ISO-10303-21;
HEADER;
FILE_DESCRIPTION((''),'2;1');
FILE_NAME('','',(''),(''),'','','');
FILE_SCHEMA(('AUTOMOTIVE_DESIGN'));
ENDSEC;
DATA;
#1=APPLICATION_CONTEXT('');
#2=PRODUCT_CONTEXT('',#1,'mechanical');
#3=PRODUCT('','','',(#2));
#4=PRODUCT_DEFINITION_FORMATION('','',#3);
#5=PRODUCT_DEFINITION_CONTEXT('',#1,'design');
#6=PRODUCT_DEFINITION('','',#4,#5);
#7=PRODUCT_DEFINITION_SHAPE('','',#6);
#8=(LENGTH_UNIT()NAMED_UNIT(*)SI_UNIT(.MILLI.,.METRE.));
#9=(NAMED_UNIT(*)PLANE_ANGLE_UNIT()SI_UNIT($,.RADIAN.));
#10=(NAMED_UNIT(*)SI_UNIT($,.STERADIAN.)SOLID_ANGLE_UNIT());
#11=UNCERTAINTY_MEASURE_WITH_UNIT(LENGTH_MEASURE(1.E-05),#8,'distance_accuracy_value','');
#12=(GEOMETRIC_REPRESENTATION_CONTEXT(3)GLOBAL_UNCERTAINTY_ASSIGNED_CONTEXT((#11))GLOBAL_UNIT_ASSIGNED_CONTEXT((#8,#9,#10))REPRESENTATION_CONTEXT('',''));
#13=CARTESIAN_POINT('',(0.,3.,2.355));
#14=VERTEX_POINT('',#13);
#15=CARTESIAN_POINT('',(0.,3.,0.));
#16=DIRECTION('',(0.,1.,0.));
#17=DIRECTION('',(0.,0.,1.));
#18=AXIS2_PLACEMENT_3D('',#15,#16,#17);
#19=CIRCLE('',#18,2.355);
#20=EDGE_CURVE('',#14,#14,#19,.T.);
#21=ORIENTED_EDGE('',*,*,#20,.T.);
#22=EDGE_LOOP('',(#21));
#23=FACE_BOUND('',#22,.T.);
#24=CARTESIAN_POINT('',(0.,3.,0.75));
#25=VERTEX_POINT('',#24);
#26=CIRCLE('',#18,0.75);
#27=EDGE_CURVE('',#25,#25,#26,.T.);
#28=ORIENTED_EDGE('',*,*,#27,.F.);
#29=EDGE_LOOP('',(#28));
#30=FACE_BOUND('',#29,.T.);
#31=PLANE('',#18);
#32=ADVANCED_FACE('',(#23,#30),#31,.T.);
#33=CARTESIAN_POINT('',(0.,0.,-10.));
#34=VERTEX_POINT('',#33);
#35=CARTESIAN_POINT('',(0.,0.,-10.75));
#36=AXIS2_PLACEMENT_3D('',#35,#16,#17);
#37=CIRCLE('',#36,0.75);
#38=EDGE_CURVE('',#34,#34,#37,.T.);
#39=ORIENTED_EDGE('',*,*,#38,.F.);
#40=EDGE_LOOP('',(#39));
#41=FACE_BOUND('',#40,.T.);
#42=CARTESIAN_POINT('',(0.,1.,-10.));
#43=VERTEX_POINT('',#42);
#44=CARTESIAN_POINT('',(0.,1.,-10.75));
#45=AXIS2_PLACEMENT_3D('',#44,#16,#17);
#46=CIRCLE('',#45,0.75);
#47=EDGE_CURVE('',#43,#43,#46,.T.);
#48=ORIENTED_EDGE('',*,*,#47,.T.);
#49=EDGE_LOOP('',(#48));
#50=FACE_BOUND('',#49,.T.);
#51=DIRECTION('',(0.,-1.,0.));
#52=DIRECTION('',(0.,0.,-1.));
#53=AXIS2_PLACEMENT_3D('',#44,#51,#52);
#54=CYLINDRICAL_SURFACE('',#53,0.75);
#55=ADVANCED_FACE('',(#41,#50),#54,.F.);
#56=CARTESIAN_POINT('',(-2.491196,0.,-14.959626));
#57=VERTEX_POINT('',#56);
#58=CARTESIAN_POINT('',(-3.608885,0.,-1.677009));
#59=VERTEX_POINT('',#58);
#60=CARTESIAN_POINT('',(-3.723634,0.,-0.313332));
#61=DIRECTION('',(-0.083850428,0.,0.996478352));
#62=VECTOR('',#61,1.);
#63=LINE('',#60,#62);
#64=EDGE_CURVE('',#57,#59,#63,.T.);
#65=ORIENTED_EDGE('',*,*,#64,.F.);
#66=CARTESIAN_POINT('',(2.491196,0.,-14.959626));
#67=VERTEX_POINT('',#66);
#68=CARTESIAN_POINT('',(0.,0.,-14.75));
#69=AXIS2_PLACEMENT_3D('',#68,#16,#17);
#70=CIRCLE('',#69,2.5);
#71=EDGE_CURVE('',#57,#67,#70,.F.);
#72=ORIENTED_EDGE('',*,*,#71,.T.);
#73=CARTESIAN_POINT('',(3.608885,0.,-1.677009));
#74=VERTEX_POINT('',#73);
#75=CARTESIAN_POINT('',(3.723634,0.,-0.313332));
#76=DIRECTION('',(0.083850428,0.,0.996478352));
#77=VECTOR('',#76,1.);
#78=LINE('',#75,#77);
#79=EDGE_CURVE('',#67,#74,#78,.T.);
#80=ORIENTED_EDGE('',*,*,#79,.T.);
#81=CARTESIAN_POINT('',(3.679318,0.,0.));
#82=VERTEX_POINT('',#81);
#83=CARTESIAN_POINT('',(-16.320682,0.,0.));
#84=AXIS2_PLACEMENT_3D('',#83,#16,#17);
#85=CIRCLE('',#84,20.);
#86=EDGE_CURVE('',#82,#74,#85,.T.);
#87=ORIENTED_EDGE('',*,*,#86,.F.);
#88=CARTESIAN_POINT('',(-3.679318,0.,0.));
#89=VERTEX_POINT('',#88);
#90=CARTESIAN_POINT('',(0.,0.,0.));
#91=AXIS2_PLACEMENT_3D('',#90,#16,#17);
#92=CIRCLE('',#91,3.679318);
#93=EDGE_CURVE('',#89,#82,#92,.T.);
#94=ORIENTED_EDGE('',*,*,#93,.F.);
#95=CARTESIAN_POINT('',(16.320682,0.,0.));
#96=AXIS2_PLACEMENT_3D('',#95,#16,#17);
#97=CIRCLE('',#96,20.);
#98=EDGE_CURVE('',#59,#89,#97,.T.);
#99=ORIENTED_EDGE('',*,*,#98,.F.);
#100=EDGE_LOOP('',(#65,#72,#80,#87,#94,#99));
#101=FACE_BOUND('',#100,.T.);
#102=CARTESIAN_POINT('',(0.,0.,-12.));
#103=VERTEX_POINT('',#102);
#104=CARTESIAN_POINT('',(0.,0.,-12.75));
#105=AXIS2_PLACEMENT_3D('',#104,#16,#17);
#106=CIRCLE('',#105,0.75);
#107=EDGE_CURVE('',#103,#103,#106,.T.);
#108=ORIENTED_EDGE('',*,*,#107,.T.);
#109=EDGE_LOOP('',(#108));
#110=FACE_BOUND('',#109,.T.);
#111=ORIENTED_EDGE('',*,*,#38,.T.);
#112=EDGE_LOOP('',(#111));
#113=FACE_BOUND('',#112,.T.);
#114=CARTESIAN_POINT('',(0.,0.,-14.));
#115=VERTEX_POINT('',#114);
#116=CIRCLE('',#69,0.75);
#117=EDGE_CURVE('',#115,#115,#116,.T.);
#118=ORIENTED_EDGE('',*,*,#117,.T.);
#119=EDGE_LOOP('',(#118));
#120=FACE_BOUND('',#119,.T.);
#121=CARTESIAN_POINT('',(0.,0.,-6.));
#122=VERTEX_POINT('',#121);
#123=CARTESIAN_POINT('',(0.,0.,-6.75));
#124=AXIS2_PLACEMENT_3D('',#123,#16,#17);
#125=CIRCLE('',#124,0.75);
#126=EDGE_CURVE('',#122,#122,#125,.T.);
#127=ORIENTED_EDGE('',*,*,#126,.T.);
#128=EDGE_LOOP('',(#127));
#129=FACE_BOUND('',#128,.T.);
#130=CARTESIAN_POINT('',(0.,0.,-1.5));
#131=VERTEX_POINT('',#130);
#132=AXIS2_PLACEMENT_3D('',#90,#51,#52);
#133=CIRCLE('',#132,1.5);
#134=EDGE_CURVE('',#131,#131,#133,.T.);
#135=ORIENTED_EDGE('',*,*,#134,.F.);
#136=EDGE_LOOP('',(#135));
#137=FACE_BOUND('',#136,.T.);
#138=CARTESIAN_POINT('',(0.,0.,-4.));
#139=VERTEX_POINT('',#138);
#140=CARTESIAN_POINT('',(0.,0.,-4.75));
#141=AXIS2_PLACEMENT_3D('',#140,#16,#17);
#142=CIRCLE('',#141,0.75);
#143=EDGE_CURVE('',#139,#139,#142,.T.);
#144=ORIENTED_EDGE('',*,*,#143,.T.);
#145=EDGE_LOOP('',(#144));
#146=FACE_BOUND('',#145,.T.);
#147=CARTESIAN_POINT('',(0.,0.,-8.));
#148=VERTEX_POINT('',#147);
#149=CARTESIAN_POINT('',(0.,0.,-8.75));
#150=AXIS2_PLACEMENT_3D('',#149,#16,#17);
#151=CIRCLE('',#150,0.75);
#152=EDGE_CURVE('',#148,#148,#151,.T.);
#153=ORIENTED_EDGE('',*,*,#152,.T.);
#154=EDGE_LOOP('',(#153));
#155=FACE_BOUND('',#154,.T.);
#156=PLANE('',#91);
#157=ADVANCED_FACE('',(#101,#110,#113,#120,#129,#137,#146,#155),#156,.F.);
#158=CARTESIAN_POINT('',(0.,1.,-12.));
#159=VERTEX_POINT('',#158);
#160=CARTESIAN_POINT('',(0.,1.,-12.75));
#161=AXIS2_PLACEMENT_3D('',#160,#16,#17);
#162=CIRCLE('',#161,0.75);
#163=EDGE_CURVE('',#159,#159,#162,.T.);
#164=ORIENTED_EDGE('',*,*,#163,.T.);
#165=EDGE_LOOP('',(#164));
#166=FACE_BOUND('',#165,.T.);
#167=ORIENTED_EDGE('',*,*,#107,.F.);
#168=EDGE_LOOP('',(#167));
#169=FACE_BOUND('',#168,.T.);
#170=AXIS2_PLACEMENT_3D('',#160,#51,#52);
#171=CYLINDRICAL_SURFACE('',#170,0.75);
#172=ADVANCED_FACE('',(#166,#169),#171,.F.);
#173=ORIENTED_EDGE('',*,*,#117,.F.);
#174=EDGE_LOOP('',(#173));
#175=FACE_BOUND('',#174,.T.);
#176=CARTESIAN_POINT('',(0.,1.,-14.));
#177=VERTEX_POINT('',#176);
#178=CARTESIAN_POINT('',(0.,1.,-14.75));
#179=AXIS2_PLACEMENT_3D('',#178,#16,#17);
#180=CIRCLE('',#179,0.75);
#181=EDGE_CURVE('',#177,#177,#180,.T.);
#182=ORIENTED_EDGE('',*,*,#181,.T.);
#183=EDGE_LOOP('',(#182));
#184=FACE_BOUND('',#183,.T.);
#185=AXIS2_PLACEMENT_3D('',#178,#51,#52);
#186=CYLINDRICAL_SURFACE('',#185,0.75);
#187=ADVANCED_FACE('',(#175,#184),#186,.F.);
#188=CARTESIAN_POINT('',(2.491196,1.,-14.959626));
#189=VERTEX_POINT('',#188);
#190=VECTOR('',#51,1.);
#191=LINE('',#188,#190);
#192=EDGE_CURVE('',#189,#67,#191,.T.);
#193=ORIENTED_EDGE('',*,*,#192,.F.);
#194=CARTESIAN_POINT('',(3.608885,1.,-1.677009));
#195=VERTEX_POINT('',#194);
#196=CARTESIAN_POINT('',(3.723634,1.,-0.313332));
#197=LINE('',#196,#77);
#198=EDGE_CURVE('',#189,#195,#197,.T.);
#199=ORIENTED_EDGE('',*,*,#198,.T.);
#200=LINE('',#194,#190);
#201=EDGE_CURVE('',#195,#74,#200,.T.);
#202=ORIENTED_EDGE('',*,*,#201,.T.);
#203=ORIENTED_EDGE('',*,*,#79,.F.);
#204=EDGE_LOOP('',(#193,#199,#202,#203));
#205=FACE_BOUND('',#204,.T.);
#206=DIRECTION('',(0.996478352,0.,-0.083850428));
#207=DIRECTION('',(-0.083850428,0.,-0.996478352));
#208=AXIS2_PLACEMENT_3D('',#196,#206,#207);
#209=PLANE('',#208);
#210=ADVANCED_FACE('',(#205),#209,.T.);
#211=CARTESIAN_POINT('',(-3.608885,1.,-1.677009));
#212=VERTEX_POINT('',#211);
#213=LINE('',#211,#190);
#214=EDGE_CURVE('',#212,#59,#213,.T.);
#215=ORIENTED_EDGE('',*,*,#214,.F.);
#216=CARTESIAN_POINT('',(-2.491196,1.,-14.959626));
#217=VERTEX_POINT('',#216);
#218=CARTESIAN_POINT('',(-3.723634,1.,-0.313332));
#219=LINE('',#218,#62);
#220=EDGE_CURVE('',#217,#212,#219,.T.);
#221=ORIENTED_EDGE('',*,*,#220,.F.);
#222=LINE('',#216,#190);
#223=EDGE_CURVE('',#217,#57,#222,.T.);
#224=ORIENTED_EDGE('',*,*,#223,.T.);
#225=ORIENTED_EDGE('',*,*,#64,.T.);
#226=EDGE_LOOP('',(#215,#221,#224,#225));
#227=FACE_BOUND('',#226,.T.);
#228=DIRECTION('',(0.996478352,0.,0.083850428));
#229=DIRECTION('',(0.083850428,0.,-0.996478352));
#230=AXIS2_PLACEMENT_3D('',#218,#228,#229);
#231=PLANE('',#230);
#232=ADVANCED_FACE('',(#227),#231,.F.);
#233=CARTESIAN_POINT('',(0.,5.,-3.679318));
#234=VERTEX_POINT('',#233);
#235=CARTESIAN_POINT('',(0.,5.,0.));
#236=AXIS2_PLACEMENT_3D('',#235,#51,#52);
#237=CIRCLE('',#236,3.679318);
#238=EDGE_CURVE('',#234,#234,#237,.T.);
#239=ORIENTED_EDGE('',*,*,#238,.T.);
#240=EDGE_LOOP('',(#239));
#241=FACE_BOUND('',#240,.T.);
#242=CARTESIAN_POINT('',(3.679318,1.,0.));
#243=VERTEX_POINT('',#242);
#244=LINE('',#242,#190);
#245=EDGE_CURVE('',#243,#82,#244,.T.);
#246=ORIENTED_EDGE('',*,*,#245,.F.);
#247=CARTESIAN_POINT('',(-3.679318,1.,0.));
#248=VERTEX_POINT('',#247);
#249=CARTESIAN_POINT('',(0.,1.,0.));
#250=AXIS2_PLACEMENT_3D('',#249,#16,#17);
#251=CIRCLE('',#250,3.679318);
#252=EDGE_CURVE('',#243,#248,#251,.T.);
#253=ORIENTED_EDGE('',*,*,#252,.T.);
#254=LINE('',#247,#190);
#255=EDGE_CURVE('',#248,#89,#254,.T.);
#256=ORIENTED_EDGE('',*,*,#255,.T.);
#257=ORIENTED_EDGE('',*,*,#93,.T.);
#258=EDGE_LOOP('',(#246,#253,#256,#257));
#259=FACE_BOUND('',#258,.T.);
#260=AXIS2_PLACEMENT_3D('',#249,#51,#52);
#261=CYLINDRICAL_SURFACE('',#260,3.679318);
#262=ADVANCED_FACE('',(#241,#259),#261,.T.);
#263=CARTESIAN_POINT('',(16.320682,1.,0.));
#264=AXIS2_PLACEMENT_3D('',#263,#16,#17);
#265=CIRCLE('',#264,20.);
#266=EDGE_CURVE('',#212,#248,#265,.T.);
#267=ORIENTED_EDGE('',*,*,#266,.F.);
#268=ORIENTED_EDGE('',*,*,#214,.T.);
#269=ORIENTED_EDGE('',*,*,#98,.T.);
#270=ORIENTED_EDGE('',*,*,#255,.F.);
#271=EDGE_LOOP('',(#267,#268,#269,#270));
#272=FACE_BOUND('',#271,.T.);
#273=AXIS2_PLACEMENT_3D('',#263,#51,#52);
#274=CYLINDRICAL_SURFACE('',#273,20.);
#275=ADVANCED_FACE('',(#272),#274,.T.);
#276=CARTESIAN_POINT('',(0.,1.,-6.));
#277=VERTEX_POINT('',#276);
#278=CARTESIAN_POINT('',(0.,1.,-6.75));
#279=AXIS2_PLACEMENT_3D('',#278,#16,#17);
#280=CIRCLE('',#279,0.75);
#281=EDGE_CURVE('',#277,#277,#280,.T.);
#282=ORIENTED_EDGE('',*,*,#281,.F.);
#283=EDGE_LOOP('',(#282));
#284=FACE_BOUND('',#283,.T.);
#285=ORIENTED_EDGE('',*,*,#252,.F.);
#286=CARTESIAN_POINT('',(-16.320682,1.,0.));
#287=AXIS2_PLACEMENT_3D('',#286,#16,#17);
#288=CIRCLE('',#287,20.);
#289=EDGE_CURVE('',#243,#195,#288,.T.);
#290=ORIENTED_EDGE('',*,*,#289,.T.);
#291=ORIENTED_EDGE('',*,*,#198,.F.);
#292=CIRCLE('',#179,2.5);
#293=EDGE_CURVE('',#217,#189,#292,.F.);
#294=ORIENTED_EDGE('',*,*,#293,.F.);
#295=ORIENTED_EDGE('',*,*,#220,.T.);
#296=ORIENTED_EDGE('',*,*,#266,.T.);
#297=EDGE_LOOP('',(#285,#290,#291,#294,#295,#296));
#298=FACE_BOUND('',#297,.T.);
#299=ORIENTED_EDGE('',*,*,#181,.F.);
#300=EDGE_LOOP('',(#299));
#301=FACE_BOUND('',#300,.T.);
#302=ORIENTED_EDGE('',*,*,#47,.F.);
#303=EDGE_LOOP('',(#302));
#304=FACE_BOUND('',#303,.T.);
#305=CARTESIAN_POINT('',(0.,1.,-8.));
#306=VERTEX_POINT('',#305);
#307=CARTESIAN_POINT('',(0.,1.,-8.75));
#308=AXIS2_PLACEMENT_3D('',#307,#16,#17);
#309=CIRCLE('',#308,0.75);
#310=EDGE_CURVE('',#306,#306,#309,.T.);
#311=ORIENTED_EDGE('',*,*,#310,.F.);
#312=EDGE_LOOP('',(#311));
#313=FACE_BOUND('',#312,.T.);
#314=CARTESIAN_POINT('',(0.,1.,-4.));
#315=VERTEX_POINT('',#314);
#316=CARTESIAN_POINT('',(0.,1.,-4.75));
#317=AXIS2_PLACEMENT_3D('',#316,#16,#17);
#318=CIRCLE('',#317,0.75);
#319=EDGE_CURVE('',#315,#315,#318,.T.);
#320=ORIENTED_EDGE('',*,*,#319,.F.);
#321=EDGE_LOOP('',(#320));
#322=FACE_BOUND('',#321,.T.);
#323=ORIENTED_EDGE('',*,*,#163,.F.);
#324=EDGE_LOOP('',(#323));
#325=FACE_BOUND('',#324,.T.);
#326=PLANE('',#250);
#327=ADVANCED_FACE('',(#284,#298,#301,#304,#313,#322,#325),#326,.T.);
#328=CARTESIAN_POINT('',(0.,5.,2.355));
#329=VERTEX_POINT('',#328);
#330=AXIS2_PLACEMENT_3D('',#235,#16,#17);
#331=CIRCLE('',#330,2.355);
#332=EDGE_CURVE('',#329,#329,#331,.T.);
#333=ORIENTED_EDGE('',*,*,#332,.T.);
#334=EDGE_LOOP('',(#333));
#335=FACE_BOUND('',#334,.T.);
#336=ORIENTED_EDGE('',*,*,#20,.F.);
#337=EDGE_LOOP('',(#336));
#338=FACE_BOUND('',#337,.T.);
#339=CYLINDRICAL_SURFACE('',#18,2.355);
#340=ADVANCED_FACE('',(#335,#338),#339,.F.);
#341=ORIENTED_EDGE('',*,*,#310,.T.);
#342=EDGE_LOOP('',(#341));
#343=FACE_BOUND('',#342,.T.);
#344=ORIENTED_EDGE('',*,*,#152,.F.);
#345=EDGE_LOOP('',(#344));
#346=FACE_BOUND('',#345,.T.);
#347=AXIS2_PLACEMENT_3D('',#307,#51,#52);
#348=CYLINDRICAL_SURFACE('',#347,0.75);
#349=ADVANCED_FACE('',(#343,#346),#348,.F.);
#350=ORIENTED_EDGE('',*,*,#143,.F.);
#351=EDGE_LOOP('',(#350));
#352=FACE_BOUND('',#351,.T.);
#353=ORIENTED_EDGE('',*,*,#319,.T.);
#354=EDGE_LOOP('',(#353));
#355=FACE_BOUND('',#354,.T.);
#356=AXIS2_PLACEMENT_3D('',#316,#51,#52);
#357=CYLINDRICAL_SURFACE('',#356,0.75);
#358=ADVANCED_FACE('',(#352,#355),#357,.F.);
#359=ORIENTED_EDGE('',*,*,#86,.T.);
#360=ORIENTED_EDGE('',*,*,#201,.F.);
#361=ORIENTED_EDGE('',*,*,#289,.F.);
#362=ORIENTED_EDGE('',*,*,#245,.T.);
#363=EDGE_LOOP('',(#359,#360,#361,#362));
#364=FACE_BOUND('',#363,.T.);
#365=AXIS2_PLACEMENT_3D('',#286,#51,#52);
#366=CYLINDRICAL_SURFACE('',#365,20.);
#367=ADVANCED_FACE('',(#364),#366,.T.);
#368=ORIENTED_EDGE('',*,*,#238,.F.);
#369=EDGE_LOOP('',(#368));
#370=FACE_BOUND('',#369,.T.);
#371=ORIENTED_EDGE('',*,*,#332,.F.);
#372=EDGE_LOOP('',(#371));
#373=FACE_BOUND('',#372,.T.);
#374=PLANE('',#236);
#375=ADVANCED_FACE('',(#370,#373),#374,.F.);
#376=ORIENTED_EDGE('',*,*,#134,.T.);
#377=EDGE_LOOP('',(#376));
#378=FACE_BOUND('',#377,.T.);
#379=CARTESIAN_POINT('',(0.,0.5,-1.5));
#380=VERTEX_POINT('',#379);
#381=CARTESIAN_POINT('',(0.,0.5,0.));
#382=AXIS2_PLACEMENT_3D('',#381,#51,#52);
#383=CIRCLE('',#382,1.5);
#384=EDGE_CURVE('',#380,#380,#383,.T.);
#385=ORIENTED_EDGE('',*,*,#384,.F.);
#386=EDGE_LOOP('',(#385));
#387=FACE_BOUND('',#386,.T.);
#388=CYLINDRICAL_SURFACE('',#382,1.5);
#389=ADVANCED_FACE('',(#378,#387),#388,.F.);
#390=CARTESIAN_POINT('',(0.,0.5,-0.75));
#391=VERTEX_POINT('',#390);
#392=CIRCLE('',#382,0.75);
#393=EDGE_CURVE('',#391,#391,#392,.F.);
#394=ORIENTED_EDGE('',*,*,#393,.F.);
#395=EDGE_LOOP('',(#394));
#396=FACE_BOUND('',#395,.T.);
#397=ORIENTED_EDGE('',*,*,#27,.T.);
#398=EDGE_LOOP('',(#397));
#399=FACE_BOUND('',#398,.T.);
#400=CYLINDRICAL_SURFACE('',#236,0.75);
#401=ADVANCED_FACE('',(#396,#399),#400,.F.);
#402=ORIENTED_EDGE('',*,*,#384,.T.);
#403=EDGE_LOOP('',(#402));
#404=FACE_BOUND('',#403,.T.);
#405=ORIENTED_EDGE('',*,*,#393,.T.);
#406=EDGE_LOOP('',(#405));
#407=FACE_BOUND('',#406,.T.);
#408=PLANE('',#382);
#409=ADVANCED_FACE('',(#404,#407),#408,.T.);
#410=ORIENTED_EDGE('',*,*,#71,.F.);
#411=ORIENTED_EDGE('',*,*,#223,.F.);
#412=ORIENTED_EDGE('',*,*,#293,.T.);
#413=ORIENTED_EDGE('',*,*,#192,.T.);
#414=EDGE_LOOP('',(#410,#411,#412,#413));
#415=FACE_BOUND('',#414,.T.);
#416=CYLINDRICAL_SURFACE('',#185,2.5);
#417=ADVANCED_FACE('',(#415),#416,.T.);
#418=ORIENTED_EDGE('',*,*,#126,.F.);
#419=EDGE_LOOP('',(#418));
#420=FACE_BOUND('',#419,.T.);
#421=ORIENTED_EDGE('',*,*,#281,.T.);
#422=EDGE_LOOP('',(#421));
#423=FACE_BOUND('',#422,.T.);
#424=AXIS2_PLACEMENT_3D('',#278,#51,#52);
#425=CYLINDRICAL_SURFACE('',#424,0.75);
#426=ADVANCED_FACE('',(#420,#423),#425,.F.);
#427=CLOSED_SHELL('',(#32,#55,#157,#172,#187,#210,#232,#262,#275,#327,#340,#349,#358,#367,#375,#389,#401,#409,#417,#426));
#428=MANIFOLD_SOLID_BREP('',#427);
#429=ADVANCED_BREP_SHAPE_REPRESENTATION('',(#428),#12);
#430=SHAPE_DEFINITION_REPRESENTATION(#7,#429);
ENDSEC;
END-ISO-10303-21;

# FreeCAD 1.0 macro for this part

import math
import FreeCAD as App
import Part
import Sketcher

doc = App.newDocument("Part")
body = doc.addObject("PartDesign::Body", "Body")

# Sketch on XZ plane
sketch1 = doc.addObject("Sketcher::SketchObject", "Sketch")
body.addObject(sketch1)
sketch1.AttachmentSupport = (doc.XZ_Plane, [""])
sketch1.MapMode = "FlatFace"
sketch1.addGeometry(Part.ArcOfCircle(Part.Circle(App.Vector(0, 0, 0), App.Vector(0, 0, 1), 3.7), math.radians(0), math.radians(180)), False)
sketch1.addGeometry(Part.ArcOfCircle(Part.Circle(App.Vector(-16.3, 0, 0), App.Vector(0, 0, 1), 20), math.radians(-4.81), math.radians(0)), False)
sketch1.addGeometry(Part.LineSegment(App.Vector(3.6, -1.7, 0), App.Vector(2.5, -15, 0)), False)
sketch1.addGeometry(Part.ArcOfCircle(Part.Circle(App.Vector(0, -14.8, 0), App.Vector(0, 0, 1), 2.5), math.radians(-175), math.radians(-5)), False)
sketch1.addGeometry(Part.LineSegment(App.Vector(-2.5, -15, 0), App.Vector(-3.6, -1.7, 0)), False)
sketch1.addGeometry(Part.ArcOfCircle(Part.Circle(App.Vector(16.3, 0, 0), App.Vector(0, 0, 1), 20), math.radians(-180), math.radians(-175.19)), False)
sketch1.addGeometry(Part.Circle(App.Vector(0, 0, 0), App.Vector(0, 0, 1), 0.8), False)
sketch1.addGeometry(Part.Circle(App.Vector(0, -14.8, 0), App.Vector(0, 0, 1), 0.8), False)
sketch1.addGeometry(Part.Circle(App.Vector(0, -4.8, 0), App.Vector(0, 0, 1), 0.8), False)
sketch1.addGeometry(Part.Circle(App.Vector(0, -6.8, 0), App.Vector(0, 0, 1), 0.8), False)
sketch1.addGeometry(Part.Circle(App.Vector(0, -8.8, 0), App.Vector(0, 0, 1), 0.8), False)
sketch1.addGeometry(Part.Circle(App.Vector(0, -10.8, 0), App.Vector(0, 0, 1), 0.8), False)
sketch1.addGeometry(Part.Circle(App.Vector(0, -12.8, 0), App.Vector(0, 0, 1), 0.8), False)
sketch1.addConstraint(Sketcher.Constraint("Tangent", 0, 1, 1, 2))
sketch1.addConstraint(Sketcher.Constraint("Tangent", 1, 1, 2, 1))
sketch1.addConstraint(Sketcher.Constraint("Tangent", 2, 2, 3, 2))
sketch1.addConstraint(Sketcher.Constraint("Tangent", 3, 1, 4, 1))
sketch1.addConstraint(Sketcher.Constraint("Tangent", 4, 2, 5, 2))
sketch1.addConstraint(Sketcher.Constraint("Tangent", 5, 1, 0, 2))
sketch1.addConstraint(Sketcher.Constraint("Coincident", 0, 3, -1, 1))
sketch1.addConstraint(Sketcher.Constraint("Coincident", 6, 3, -1, 1))
sketch1.addConstraint(Sketcher.Constraint("Coincident", 7, 3, 3, 3))
sketch1.addConstraint(Sketcher.Constraint("Equal", 1, 5))
sketch1.addConstraint(Sketcher.Constraint("Equal", 6, 7))
sketch1.addConstraint(Sketcher.Constraint("Equal", 7, 8))
sketch1.addConstraint(Sketcher.Constraint("Equal", 8, 9))
sketch1.addConstraint(Sketcher.Constraint("Equal", 9, 10))
sketch1.addConstraint(Sketcher.Constraint("Equal", 10, 11))
sketch1.addConstraint(Sketcher.Constraint("Equal", 11, 12))
sketch1.addConstraint(Sketcher.Constraint("Symmetric", 2, 2, 3, 1, -2))
sketch1.addConstraint(Sketcher.Constraint("PointOnObject", 1, 3, -1))
sketch1.addConstraint(Sketcher.Constraint("PointOnObject", 8, 3, -2))
sketch1.addConstraint(Sketcher.Constraint("PointOnObject", 9, 3, -2))
sketch1.addConstraint(Sketcher.Constraint("PointOnObject", 10, 3, -2))
sketch1.addConstraint(Sketcher.Constraint("PointOnObject", 11, 3, -2))
sketch1.addConstraint(Sketcher.Constraint("PointOnObject", 12, 3, -2))
sketch1.addConstraint(Sketcher.Constraint("Radius", 1, 20.0))
sketch1.addConstraint(Sketcher.Constraint("Diameter", 6, 1.5))
sketch1.addConstraint(Sketcher.Constraint("Radius", 3, 2.5))
sketch1.addConstraint(Sketcher.Constraint("DistanceY", 3, 3, 8, 3, 10.0))
sketch1.addConstraint(Sketcher.Constraint("DistanceY", 9, 3, 8, 3, 2.0))
sketch1.addConstraint(Sketcher.Constraint("DistanceY", 10, 3, 9, 3, 2.0))
sketch1.addConstraint(Sketcher.Constraint("DistanceY", 11, 3, 10, 3, 2.0))
sketch1.addConstraint(Sketcher.Constraint("DistanceY", 3, 3, 12, 3, 2.0))
sketch1.addConstraint(Sketcher.Constraint("DistanceY", 3, 3, -1, 1, 14.75))
sketch1.addConstraint(Sketcher.Constraint("Radius", 0, 3.679318))
pad1 = doc.addObject("PartDesign::Pad", "Pad")
body.addObject(pad1)
pad1.Profile = sketch1
pad1.Length = 1
pad1.Reversed = True

# Sketch on XZ plane
sketch2 = doc.addObject("Sketcher::SketchObject", "Sketch001")
body.addObject(sketch2)
sketch2.AttachmentSupport = (doc.XZ_Plane, [""])
sketch2.MapMode = "FlatFace"
sketch2.addGeometry(Part.Circle(App.Vector(0, 0, 0), App.Vector(0, 0, 1), 3.7), False)
sketch2.addConstraint(Sketcher.Constraint("Coincident", 0, 3, -1, 1))
sketch2.addConstraint(Sketcher.Constraint("Diameter", 0, 7.358636))
pad2 = doc.addObject("PartDesign::Pad", "Pad001")
body.addObject(pad2)
pad2.Profile = sketch2
pad2.Length = 5
pad2.Reversed = True

# Sketch on XZ plane
sketch3 = doc.addObject("Sketcher::SketchObject", "Sketch002")
body.addObject(sketch3)
sketch3.AttachmentSupport = (doc.XZ_Plane, [""])
sketch3.MapMode = "FlatFace"
sketch3.addGeometry(Part.Circle(App.Vector(0, 0, 0), App.Vector(0, 0, 1), 1.5), False)
sketch3.addConstraint(Sketcher.Constraint("Coincident", 0, 3, -1, 1))
sketch3.addConstraint(Sketcher.Constraint("Diameter", 0, 3.0))
pocket1 = doc.addObject("PartDesign::Pocket", "Pocket")
body.addObject(pocket1)
pocket1.Profile = sketch3
pocket1.Length = 0.5

# Sketch on XZ plane
sketch4 = doc.addObject("Sketcher::SketchObject", "Sketch003")
body.addObject(sketch4)
sketch4.AttachmentSupport = (doc.XZ_Plane, [""])
sketch4.MapMode = "FlatFace"
sketch4.addGeometry(Part.Circle(App.Vector(0, 0, 0), App.Vector(0, 0, 1), 0.8), False)
sketch4.addConstraint(Sketcher.Constraint("Coincident", 0, 3, -1, 1))
sketch4.addConstraint(Sketcher.Constraint("Diameter", 0, 1.5))
pocket2 = doc.addObject("PartDesign::Pocket", "Pocket001")
body.addObject(pocket2)
pocket2.Profile = sketch4
pocket2.Type = "ThroughAll"

# Sketch on XZ plane
sketch5 = doc.addObject("Sketcher::SketchObject", "Sketch004")
body.addObject(sketch5)
sketch5.AttachmentSupport = (doc.XZ_Plane, [""])
sketch5.MapMode = "FlatFace"
sketch5.AttachmentOffset = App.Placement(App.Vector(0, 0, -5), App.Rotation())
sketch5.addGeometry(Part.Circle(App.Vector(0, 0, 0), App.Vector(0, 0, 1), 2.4), False)
sketch5.addConstraint(Sketcher.Constraint("Coincident", 0, 3, -1, 1))
sketch5.addConstraint(Sketcher.Constraint("Diameter", 0, 4.71))
pocket3 = doc.addObject("PartDesign::Pocket", "Pocket002")
body.addObject(pocket3)
pocket3.Profile = sketch5
pocket3.Length = 2
pocket3.Reversed = True

doc.recompute()
